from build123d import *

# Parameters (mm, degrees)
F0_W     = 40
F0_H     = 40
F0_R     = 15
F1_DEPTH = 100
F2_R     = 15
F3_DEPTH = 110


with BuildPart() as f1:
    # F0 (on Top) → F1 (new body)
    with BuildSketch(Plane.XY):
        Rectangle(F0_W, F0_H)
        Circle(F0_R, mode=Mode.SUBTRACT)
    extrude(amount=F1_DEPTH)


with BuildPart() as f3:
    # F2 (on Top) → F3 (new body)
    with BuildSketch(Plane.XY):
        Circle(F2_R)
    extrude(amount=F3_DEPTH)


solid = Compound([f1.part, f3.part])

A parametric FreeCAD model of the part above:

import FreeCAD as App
import Part
import Sketcher

V = App.Vector


def add_polygon(sketch, points):
    """Adds a closed chain of lines whose ends are joined by coincident constraints."""
    first, n = sketch.GeometryCount, len(points)
    for a, b in zip(points, points[1:] + points[:1]):
        sketch.addGeometry(Part.LineSegment(App.Vector(*a, 0), App.Vector(*b, 0)), False)
    for i in range(n):
        sketch.addConstraint(Sketcher.Constraint("Coincident", first + i, 2, first + (i + 1) % n, 1))

doc = App.newDocument("Part")
body = doc.addObject("PartDesign::Body", "Body")

# Sketch on XY plane
sketch1 = body.newObject("Sketcher::SketchObject", "Sketch")
sketch1.AttachmentSupport = (doc.getObject("XY_Plane"), [""])
sketch1.MapMode = "FlatFace"
add_polygon(sketch1, [(-20, 20), (-20, -20), (20, -20), (20, 20)])  # lines 0-3
sketch1.addGeometry(Part.Circle(V(0, 0, 0), V(0, 0, 1), 15), False)  # 4
sketch1.addConstraint([
    Sketcher.Constraint("Vertical", 0),
    Sketcher.Constraint("Horizontal", 1),
    Sketcher.Constraint("Vertical", 2),
    Sketcher.Constraint("Horizontal", 3),
    Sketcher.Constraint("Coincident", 4, 3, -1, 1),
    Sketcher.Constraint("Symmetric", 0, 2, 2, 2, -1, 1),
    Sketcher.Constraint("Equal", 3, 0),
    Sketcher.Constraint("Diameter", 4, 30.0),
    Sketcher.Constraint("DistanceX", 1, 1, 1, 2, 40.0),
])
pad1 = body.newObject("PartDesign::Pad", "Pad")
pad1.Profile = sketch1
pad1.Length = 100
body2 = doc.addObject("PartDesign::Body", "Body001")

# Sketch on XY plane
sketch2 = body2.newObject("Sketcher::SketchObject", "Sketch001")
sketch2.AttachmentSupport = (doc.getObject("XY_Plane001"), [""])
sketch2.MapMode = "FlatFace"
sketch2.addGeometry(Part.Circle(V(0, 0, 0), V(0, 0, 1), 15), False)
sketch2.addConstraint([
    Sketcher.Constraint("Coincident", 0, 3, -1, 1),
    Sketcher.Constraint("Diameter", 0, 30.0),
])
pad2 = body2.newObject("PartDesign::Pad", "Pad001")
pad2.Profile = sketch2
pad2.Length = 110

doc.recompute()
